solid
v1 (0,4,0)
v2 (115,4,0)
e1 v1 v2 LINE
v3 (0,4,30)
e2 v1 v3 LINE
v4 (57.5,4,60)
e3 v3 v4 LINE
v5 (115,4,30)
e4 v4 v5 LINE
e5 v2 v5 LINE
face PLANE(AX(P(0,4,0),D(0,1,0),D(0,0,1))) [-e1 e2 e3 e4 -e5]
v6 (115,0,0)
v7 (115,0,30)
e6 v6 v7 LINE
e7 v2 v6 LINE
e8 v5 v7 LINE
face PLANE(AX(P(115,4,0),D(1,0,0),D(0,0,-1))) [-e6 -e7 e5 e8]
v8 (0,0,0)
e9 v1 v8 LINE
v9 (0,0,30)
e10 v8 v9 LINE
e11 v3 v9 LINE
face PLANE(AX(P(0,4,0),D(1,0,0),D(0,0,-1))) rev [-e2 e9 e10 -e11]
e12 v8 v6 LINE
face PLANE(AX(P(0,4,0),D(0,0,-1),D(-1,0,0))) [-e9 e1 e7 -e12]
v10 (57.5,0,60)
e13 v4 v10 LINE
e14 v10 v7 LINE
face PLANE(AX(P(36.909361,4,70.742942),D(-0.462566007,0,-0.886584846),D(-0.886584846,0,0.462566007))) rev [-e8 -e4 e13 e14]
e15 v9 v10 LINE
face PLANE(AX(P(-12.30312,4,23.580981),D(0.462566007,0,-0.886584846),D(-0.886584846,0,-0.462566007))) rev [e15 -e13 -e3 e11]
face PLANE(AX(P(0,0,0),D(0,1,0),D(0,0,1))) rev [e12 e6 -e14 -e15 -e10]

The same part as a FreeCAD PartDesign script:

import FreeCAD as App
import Part
import Sketcher


def add_polygon(sketch, points):
    """Adds a closed chain of lines whose ends are joined by coincident constraints."""
    first, n = sketch.GeometryCount, len(points)
    for a, b in zip(points, points[1:] + points[:1]):
        sketch.addGeometry(Part.LineSegment(App.Vector(*a, 0), App.Vector(*b, 0)), False)
    for i in range(n):
        sketch.addConstraint(Sketcher.Constraint("Coincident", first + i, 2, first + (i + 1) % n, 1))

doc = App.newDocument("Part")
body = doc.addObject("PartDesign::Body", "Body")

# Sketch on XZ plane
sketch1 = doc.addObject("Sketcher::SketchObject", "Sketch")
body.addObject(sketch1)
sketch1.AttachmentSupport = (doc.XZ_Plane, [""])
sketch1.MapMode = "FlatFace"
add_polygon(sketch1, [(0, 30), (57.5, 60), (115, 30), (115, 0), (0, 0)])  # lines 0-4
sketch1.addConstraint([
    Sketcher.Constraint("Vertical", 2),
    Sketcher.Constraint("Horizontal", 3),
    Sketcher.Constraint("Vertical", 4),
    Sketcher.Constraint("Coincident", 3, 2, -1, 1),
    Sketcher.Constraint("Horizontal", 1, 2, 4, 2),
    Sketcher.Constraint("Equal", 0, 1),
    Sketcher.Constraint("DistanceX", 3, 2, 3, 1, 115.0),
    Sketcher.Constraint("DistanceY", 2, 2, 2, 1, 30.0),
    Sketcher.Constraint("DistanceY", -1, 1, 0, 2, 60.0),
])
pad1 = doc.addObject("PartDesign::Pad", "Pad")
body.addObject(pad1)
pad1.Profile = sketch1
pad1.Length = 4
pad1.Reversed = True

doc.recompute()
